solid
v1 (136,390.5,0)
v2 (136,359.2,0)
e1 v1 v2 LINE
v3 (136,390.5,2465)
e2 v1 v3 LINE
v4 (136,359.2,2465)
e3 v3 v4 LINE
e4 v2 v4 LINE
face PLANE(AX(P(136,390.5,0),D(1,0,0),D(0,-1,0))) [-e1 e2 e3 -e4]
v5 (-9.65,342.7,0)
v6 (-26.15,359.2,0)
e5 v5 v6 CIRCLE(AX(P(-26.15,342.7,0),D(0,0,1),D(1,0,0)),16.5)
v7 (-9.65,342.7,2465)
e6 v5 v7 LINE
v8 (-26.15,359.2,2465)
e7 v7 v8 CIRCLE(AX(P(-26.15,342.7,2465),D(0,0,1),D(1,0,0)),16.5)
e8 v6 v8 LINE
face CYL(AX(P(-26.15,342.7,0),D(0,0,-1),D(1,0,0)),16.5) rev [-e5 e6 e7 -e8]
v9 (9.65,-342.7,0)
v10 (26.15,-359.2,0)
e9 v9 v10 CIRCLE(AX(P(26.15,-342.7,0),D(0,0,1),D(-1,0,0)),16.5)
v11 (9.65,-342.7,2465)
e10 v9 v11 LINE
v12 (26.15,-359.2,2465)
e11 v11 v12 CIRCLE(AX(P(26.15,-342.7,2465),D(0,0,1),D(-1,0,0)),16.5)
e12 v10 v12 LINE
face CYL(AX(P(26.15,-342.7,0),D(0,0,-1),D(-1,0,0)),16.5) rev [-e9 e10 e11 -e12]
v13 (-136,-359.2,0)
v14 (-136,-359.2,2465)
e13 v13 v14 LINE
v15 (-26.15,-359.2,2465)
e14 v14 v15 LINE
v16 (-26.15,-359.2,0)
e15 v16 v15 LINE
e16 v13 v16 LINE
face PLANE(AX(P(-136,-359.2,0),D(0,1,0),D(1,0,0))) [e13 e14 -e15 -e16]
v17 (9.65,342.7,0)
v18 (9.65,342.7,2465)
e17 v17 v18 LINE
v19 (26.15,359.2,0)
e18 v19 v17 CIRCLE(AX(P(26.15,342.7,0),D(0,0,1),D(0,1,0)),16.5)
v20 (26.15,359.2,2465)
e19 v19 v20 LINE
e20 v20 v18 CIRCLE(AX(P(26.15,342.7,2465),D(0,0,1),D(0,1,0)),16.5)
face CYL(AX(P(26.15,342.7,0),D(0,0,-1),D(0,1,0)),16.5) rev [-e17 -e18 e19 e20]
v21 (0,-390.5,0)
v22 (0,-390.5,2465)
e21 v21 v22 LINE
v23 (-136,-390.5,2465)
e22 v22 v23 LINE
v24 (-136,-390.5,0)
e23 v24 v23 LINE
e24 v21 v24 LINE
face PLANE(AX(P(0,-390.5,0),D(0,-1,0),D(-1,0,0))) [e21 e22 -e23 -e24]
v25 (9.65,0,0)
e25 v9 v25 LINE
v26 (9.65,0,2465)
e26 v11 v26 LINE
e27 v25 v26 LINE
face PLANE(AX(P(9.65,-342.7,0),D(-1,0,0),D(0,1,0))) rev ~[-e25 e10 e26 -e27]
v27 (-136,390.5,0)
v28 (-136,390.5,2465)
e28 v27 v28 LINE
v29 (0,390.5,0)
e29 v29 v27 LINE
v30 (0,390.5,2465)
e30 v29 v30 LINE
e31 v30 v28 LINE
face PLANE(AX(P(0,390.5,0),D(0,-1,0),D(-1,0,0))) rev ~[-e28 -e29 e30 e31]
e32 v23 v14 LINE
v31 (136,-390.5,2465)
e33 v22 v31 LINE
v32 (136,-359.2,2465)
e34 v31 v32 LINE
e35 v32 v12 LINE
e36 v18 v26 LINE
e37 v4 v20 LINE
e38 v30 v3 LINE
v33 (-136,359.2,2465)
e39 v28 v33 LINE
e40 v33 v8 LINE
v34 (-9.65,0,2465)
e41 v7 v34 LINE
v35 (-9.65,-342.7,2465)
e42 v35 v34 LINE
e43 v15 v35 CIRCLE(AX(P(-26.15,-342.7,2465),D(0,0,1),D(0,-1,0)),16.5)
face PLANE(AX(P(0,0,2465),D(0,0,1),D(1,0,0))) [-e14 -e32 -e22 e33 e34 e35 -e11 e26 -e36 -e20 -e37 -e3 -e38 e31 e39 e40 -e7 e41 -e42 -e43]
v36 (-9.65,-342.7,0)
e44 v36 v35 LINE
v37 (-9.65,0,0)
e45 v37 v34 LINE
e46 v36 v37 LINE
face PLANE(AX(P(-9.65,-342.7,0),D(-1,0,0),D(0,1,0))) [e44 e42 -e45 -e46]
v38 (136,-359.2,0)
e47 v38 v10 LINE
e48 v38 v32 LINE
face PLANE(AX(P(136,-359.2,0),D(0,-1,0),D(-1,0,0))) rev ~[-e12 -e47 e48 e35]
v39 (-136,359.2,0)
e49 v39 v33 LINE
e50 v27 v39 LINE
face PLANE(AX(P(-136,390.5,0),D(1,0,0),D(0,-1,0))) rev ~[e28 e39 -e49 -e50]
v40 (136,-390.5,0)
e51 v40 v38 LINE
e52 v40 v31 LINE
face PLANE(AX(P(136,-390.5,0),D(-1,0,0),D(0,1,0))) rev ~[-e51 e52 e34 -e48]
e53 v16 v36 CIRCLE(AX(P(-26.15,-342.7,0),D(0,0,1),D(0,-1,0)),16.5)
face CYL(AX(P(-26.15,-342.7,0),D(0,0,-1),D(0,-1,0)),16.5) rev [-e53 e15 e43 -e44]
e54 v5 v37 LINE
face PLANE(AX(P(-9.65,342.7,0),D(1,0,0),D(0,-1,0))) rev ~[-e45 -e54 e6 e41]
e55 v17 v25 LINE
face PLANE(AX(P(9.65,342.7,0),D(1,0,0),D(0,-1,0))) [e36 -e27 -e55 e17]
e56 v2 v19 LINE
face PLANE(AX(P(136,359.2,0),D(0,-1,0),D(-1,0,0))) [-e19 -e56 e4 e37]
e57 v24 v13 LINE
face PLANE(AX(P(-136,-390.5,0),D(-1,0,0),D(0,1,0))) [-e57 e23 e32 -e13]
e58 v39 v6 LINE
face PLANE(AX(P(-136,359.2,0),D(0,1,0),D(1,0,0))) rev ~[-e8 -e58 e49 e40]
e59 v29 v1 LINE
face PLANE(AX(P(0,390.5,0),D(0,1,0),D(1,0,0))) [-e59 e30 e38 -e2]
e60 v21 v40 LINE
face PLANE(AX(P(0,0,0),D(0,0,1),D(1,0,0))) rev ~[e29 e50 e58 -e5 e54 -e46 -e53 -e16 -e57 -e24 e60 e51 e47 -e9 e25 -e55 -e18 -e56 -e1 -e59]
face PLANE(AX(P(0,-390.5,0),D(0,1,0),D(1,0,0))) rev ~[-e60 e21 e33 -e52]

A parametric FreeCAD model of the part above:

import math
import FreeCAD as App
import Part
import Sketcher
from FreeCAD import Vector
Q = App.Units.Quantity

doc = App.newDocument("Part")
body = doc.addObject("PartDesign::Body", "Body")

sketch1 = doc.addObject("Sketcher::SketchObject", "Sketch")
body.addObject(sketch1)
sketch1.AttachmentSupport = (doc.XY_Plane, [""])
sketch1.MapMode = "FlatFace"
sketch1.addGeometry([
    Part.LineSegment(Vector(-136, -359.2, 0), Vector(-136, -390.5, 0)),
    Part.LineSegment(Vector(-136, -390.5, 0), Vector(136, -390.5, 0)),
    Part.LineSegment(Vector(136, -390.5, 0), Vector(136, -359.2, 0)),
    Part.LineSegment(Vector(136, -359.2, 0), Vector(26.15, -359.2, 0)),
    Part.ArcOfCircle(Part.Circle(Vector(26.15, -342.7, 0), Vector(0, 0, 1), 16.5), math.radians(180), math.radians(270)),
    Part.LineSegment(Vector(9.65, -342.7, 0), Vector(9.65, 342.7, 0)),
    Part.ArcOfCircle(Part.Circle(Vector(26.15, 342.7, 0), Vector(0, 0, 1), 16.5), math.radians(90), math.radians(180)),
    Part.LineSegment(Vector(26.15, 359.2, 0), Vector(136, 359.2, 0)),
    Part.LineSegment(Vector(136, 359.2, 0), Vector(136, 390.5, 0)),
    Part.LineSegment(Vector(136, 390.5, 0), Vector(-136, 390.5, 0)),
    Part.LineSegment(Vector(-136, 390.5, 0), Vector(-136, 359.2, 0)),
    Part.LineSegment(Vector(-136, 359.2, 0), Vector(-26.15, 359.2, 0)),
    Part.ArcOfCircle(Part.Circle(Vector(-26.15, 342.7, 0), Vector(0, 0, 1), 16.5), math.radians(0), math.radians(90)),
    Part.LineSegment(Vector(-9.65, 342.7, 0), Vector(-9.65, -342.7, 0)),
    Part.ArcOfCircle(Part.Circle(Vector(-26.15, -342.7, 0), Vector(0, 0, 1), 16.5), math.radians(-90), math.radians(0)),
    Part.LineSegment(Vector(-26.15, -359.2, 0), Vector(-136, -359.2, 0)),
], False)
sketch1.addConstraint([
    Sketcher.Constraint("Coincident", 0, 2, 1, 1),
    Sketcher.Constraint("Coincident", 1, 2, 2, 1),
    Sketcher.Constraint("Coincident", 2, 2, 3, 1),
    Sketcher.Constraint("Tangent", 3, 2, 4, 2),
    Sketcher.Constraint("Tangent", 4, 1, 5, 1),
    Sketcher.Constraint("Tangent", 5, 2, 6, 2),
    Sketcher.Constraint("Tangent", 6, 1, 7, 1),
    Sketcher.Constraint("Coincident", 7, 2, 8, 1),
    Sketcher.Constraint("Coincident", 8, 2, 9, 1),
    Sketcher.Constraint("Coincident", 9, 2, 10, 1),
    Sketcher.Constraint("Coincident", 10, 2, 11, 1),
    Sketcher.Constraint("Tangent", 11, 2, 12, 2),
    Sketcher.Constraint("Tangent", 12, 1, 13, 1),
    Sketcher.Constraint("Tangent", 13, 2, 14, 2),
    Sketcher.Constraint("Tangent", 14, 1, 15, 1),
    Sketcher.Constraint("Coincident", 15, 2, 0, 1),
    Sketcher.Constraint("Vertical", 0),
    Sketcher.Constraint("Horizontal", 1),
    Sketcher.Constraint("Vertical", 2),
    Sketcher.Constraint("Horizontal", 3),
    Sketcher.Constraint("Vertical", 5),
    Sketcher.Constraint("Horizontal", 7),
    Sketcher.Constraint("Vertical", 8),
    Sketcher.Constraint("Horizontal", 9),
    Sketcher.Constraint("Vertical", 10),
    Sketcher.Constraint("Horizontal", 11),
    Sketcher.Constraint("Vertical", 13),
    Sketcher.Constraint("Horizontal", 15),
    Sketcher.Constraint("Equal", 4, 6),
    Sketcher.Constraint("Equal", 6, 12),
    Sketcher.Constraint("Equal", 12, 14),
    Sketcher.Constraint("Symmetric", 4, 3, 12, 3, -1, 1),
    Sketcher.Constraint("Symmetric", 0, 2, 8, 2, -1, 1),
    Sketcher.Constraint("Symmetric", 7, 2, 10, 2, -2),
    Sketcher.Constraint("Symmetric", 2, 2, 15, 2, -2),
    Sketcher.Constraint("Radius", 4, Q("16.5 mm")),
    Sketcher.Constraint("DistanceY", 0, 2, 0, 1, Q("31.3 mm")),
    Sketcher.Constraint("DistanceX", 0, 2, -1, 1, Q("136 mm")),
    Sketcher.Constraint("DistanceY", 0, 2, -1, 1, Q("390.5 mm")),
    Sketcher.Constraint("DistanceX", -1, 1, 4, 1, Q("9.65 mm")),
])
pad1 = doc.addObject("PartDesign::Pad", "Pad")
body.addObject(pad1)
pad1.Profile = sketch1
pad1.Length = 2465

doc.recompute()
